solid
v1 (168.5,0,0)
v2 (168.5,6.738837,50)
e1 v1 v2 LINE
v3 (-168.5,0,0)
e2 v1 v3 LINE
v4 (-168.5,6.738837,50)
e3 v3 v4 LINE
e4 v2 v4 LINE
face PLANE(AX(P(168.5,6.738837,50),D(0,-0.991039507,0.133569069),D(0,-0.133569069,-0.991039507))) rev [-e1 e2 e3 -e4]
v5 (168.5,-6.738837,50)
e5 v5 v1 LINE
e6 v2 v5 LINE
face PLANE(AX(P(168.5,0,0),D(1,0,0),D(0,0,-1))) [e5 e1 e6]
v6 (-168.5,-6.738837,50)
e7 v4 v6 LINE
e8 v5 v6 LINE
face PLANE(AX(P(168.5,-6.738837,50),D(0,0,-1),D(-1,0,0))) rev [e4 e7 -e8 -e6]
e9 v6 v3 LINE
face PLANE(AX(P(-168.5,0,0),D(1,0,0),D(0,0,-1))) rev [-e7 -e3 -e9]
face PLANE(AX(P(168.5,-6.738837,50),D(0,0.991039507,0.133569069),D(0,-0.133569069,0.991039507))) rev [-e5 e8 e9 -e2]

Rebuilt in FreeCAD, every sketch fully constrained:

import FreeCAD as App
import Part
import Sketcher
Q = App.Units.Quantity

doc = App.newDocument("Part")
body = doc.addObject("PartDesign::Body", "Body")

# Sketch on YZ plane
sketch1 = doc.addObject("Sketcher::SketchObject", "Sketch")
body.addObject(sketch1)
sketch1.AttachmentSupport = (doc.YZ_Plane, [""])
sketch1.MapMode = "FlatFace"
sketch1.addGeometry(Part.LineSegment(App.Vector(7, 50, 0), App.Vector(-7, 50, 0)), False)
sketch1.addGeometry(Part.LineSegment(App.Vector(-7, 50, 0), App.Vector(0, 0, 0)), False)
sketch1.addGeometry(Part.LineSegment(App.Vector(0, 0, 0), App.Vector(7, 50, 0)), False)
sketch1.addConstraint(Sketcher.Constraint("Coincident", 0, 2, 1, 1))
sketch1.addConstraint(Sketcher.Constraint("Coincident", 1, 2, 2, 1))
sketch1.addConstraint(Sketcher.Constraint("Coincident", 2, 2, 0, 1))
sketch1.addConstraint(Sketcher.Constraint("Horizontal", 0))
sketch1.addConstraint(Sketcher.Constraint("Coincident", 1, 2, -1, 1))
sketch1.addConstraint(Sketcher.Constraint("Equal", 1, 2))
sketch1.addConstraint(Sketcher.Constraint("DistanceY", -1, 1, 0, 2, Q("50 mm")))
sketch1.addConstraint(Sketcher.Constraint("DistanceX", 0, 2, 0, 1, Q("13.477673 mm")))
pad1 = doc.addObject("PartDesign::Pad", "Pad")
body.addObject(pad1)
pad1.Profile = sketch1
pad1.Length = 337
pad1.Midplane = True

doc.recompute()
